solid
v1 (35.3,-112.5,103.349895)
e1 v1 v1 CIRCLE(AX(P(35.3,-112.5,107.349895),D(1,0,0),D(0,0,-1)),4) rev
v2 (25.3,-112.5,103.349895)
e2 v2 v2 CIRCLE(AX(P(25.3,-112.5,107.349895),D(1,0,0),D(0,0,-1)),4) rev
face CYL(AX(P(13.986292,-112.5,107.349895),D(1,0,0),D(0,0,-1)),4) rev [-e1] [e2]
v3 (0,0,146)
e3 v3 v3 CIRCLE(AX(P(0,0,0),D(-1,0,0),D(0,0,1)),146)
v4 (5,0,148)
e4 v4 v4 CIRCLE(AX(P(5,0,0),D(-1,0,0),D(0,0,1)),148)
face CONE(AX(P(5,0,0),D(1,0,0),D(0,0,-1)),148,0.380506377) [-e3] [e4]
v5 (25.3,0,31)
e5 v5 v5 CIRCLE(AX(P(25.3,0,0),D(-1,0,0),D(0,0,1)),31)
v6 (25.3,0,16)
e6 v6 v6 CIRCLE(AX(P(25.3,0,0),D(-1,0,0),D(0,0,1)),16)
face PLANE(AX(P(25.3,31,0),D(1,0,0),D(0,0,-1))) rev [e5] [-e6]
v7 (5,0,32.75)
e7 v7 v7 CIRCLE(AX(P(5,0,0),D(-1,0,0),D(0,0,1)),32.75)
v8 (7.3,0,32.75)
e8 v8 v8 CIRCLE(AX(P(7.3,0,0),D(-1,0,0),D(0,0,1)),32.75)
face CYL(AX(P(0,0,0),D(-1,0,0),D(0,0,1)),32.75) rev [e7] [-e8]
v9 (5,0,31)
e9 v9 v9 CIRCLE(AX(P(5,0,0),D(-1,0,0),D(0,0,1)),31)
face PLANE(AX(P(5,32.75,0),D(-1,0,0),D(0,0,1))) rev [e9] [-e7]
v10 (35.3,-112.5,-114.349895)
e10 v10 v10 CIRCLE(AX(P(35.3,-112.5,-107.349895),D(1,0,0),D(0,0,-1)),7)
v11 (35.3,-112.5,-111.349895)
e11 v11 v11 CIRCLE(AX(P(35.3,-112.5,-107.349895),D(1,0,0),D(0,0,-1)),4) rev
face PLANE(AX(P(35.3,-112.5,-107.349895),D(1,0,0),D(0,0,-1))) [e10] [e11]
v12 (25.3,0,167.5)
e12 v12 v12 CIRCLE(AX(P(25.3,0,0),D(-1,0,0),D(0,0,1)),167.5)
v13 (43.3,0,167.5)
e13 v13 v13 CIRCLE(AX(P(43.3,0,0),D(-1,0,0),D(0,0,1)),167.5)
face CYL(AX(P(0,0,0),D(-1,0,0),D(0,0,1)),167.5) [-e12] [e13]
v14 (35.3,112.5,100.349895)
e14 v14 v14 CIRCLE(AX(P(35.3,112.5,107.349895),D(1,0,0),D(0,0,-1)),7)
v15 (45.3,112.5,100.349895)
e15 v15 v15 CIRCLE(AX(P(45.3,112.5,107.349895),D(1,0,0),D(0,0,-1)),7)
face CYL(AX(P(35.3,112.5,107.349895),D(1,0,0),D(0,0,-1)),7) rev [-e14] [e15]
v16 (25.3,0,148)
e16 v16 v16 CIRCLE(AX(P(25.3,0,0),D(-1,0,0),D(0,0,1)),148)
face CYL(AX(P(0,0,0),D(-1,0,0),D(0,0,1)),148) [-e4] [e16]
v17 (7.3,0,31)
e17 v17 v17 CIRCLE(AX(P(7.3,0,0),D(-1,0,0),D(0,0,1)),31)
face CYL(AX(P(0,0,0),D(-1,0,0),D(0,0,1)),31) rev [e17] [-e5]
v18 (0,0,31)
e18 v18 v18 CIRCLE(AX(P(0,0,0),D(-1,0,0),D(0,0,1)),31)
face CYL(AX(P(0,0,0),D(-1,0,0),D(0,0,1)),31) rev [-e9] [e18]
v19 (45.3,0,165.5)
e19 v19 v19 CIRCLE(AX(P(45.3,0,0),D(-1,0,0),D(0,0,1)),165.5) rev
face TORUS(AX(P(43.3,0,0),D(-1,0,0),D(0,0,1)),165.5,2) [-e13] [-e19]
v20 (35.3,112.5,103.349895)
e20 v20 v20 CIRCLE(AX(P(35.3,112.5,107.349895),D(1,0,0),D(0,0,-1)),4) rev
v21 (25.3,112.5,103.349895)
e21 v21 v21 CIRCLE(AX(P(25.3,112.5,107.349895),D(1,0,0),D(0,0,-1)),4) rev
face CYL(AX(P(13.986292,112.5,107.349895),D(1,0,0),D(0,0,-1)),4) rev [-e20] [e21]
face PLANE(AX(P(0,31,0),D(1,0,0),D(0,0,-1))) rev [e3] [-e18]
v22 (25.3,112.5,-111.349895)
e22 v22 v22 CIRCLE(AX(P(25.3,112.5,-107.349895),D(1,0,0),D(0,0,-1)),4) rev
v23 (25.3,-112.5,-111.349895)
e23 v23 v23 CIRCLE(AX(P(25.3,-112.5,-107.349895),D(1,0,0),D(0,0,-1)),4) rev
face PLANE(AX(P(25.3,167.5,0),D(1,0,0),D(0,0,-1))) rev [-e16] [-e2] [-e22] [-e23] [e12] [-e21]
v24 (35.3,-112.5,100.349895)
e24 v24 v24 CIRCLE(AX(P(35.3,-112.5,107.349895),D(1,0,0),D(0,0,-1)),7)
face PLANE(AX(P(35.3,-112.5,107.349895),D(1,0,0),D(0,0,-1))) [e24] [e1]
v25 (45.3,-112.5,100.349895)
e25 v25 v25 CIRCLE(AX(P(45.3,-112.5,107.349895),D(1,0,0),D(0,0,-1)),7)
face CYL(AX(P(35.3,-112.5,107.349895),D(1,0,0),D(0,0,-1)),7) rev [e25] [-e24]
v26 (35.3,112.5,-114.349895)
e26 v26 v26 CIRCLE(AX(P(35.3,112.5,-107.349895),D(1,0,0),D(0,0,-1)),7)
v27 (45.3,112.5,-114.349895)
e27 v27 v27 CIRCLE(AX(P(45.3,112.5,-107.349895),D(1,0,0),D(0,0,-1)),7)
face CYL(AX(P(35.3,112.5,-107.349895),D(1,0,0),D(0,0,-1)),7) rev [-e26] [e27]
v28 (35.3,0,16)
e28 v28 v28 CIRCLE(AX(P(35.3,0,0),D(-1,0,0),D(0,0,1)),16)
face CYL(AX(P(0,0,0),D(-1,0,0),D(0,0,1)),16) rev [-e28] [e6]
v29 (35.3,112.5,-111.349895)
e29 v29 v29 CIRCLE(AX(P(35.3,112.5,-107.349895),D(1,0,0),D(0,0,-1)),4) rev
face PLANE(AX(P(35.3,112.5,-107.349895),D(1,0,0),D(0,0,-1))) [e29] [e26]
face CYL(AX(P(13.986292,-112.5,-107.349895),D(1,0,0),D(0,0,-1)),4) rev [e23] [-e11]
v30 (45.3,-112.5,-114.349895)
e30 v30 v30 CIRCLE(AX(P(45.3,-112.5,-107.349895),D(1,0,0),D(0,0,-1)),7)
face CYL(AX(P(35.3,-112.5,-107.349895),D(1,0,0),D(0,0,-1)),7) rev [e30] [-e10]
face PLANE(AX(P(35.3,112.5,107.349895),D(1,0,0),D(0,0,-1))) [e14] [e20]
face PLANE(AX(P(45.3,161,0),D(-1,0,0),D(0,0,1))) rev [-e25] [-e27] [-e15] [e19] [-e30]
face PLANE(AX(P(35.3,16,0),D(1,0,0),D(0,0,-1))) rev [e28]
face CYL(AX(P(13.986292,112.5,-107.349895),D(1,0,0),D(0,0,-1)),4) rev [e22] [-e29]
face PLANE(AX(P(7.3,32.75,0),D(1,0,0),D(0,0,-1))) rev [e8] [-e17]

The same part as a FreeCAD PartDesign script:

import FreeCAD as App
import Part
import Sketcher
Q = App.Units.Quantity


def edges_at(feature, points):
    """Names of the edges that pass closest to the given points."""
    edges = feature.Shape.Edges
    near = lambda p: min(range(len(edges)), key=lambda i: edges[i].distToShape(Part.Vertex(*p))[0])
    return sorted({f"Edge{near(p) + 1}" for p in points})


def add_polygon(sketch, points):
    """Adds a closed chain of lines whose ends are joined by coincident constraints."""
    first, n = sketch.GeometryCount, len(points)
    for a, b in zip(points, points[1:] + points[:1]):
        sketch.addGeometry(Part.LineSegment(App.Vector(*a, 0), App.Vector(*b, 0)), False)
    for i in range(n):
        sketch.addConstraint(Sketcher.Constraint("Coincident", first + i, 2, first + (i + 1) % n, 1))

doc = App.newDocument("Part")
body = doc.addObject("PartDesign::Body", "Body")

sketch1 = body.newObject("Sketcher::SketchObject", "Sketch")
sketch1.AttachmentSupport = (doc.getObject("XY_Plane"), [""])
sketch1.MapMode = "FlatFace"
add_polygon(sketch1, [(0, 31), (5, 31), (5, 32.8), (7.3, 32.8), (7.3, 31), (25.3, 31), (25.3, 16), (35.3, 16), (35.3, 0), (45.3, 0), (45.3, 167.5), (25.3, 167.5), (25.3, 148), (5, 148), (0, 146)])
sketch1.addConstraint(Sketcher.Constraint("Horizontal", 0))
sketch1.addConstraint(Sketcher.Constraint("Vertical", 1))
sketch1.addConstraint(Sketcher.Constraint("Horizontal", 2))
sketch1.addConstraint(Sketcher.Constraint("Vertical", 3))
sketch1.addConstraint(Sketcher.Constraint("Horizontal", 4))
sketch1.addConstraint(Sketcher.Constraint("Vertical", 5))
sketch1.addConstraint(Sketcher.Constraint("Horizontal", 6))
sketch1.addConstraint(Sketcher.Constraint("Vertical", 7))
sketch1.addConstraint(Sketcher.Constraint("Horizontal", 8))
sketch1.addConstraint(Sketcher.Constraint("Vertical", 9))
sketch1.addConstraint(Sketcher.Constraint("Horizontal", 10))
sketch1.addConstraint(Sketcher.Constraint("Vertical", 11))
sketch1.addConstraint(Sketcher.Constraint("Horizontal", 12))
sketch1.addConstraint(Sketcher.Constraint("Vertical", 14))
sketch1.addConstraint(Sketcher.Constraint("PointOnObject", 7, 2, -1))
sketch1.addConstraint(Sketcher.Constraint("PointOnObject", 13, 2, -2))
sketch1.addConstraint(Sketcher.Constraint("Horizontal", 0, 2, 3, 2))
sketch1.addConstraint(Sketcher.Constraint("Vertical", 5, 2, 10, 2))
sketch1.addConstraint(Sketcher.Constraint("Vertical", 1, 2, 12, 2))
sketch1.addConstraint(Sketcher.Constraint("Equal", 6, 8))
sketch1.addConstraint(Sketcher.Constraint("DistanceX", 0, 1, 0, 2, Q("5 mm")))
sketch1.addConstraint(Sketcher.Constraint("DistanceX", 4, 1, 4, 2, Q("18 mm")))
sketch1.addConstraint(Sketcher.Constraint("DistanceX", 6, 1, 6, 2, Q("10 mm")))
sketch1.addConstraint(Sketcher.Constraint("DistanceY", 5, 2, 5, 1, Q("15 mm")))
sketch1.addConstraint(Sketcher.Constraint("DistanceY", 7, 2, 7, 1, Q("16 mm")))
sketch1.addConstraint(Sketcher.Constraint("DistanceY", 14, 2, 14, 1, Q("115 mm")))
sketch1.addConstraint(Sketcher.Constraint("DistanceX", 2, 1, 2, 2, Q("2.3 mm")))
sketch1.addConstraint(Sketcher.Constraint("DistanceY", 9, 1, 9, 2, Q("167.5 mm")))
sketch1.addConstraint(Sketcher.Constraint("DistanceY", 11, 2, 11, 1, Q("19.5 mm")))
sketch1.addConstraint(Sketcher.Constraint("DistanceY", 1, 1, 1, 2, Q("1.75 mm")))
revolution = body.newObject("PartDesign::Revolution", "Revolution")
revolution.Profile = sketch1
revolution.ReferenceAxis = (sketch1, ["H_Axis"])
revolution.Angle = 360

sketch2 = body.newObject("Sketcher::SketchObject", "Sketch001")
sketch2.AttachmentSupport = (doc.getObject("YZ_Plane"), [""])
sketch2.MapMode = "FlatFace"
sketch2.AttachmentOffset = App.Placement(App.Vector(0, 0, 45.3), App.Rotation())
sketch2.addGeometry(Part.Circle(App.Vector(112.5, 107.3, 0), App.Vector(0, 0, 1), 4), False)
sketch2.addGeometry(Part.Circle(App.Vector(112.5, -107.3, 0), App.Vector(0, 0, 1), 4), False)
sketch2.addGeometry(Part.Circle(App.Vector(-112.5, -107.3, 0), App.Vector(0, 0, 1), 4), False)
sketch2.addGeometry(Part.Circle(App.Vector(-112.5, 107.3, 0), App.Vector(0, 0, 1), 4), False)
sketch2.addConstraint(Sketcher.Constraint("Equal", 0, 1))
sketch2.addConstraint(Sketcher.Constraint("Equal", 1, 2))
sketch2.addConstraint(Sketcher.Constraint("Equal", 2, 3))
sketch2.addConstraint(Sketcher.Constraint("Symmetric", 0, 3, 2, 3, -1, 1))
sketch2.addConstraint(Sketcher.Constraint("Symmetric", 1, 3, 3, 3, -1, 1))
sketch2.addConstraint(Sketcher.Constraint("Symmetric", 1, 3, 2, 3, -2))
sketch2.addConstraint(Sketcher.Constraint("Diameter", 0, Q("8 mm")))
sketch2.addConstraint(Sketcher.Constraint("DistanceX", 2, 3, 1, 3, Q("225 mm")))
sketch2.addConstraint(Sketcher.Constraint("DistanceY", 1, 3, 0, 3, Q("214.69979 mm")))
pocket1 = body.newObject("PartDesign::Pocket", "Pocket")
pocket1.Profile = sketch2
pocket1.Length = 20

sketch3 = body.newObject("Sketcher::SketchObject", "Sketch002")
sketch3.AttachmentSupport = (doc.getObject("YZ_Plane"), [""])
sketch3.MapMode = "FlatFace"
sketch3.AttachmentOffset = App.Placement(App.Vector(0, 0, 45.3), App.Rotation())
sketch3.addGeometry(Part.Circle(App.Vector(112, 107, 0), App.Vector(0, 0, 1), 7), False)
sketch3.addGeometry(Part.Circle(App.Vector(112, -107, 0), App.Vector(0, 0, 1), 7), False)
sketch3.addGeometry(Part.Circle(App.Vector(-112, -107, 0), App.Vector(0, 0, 1), 7), False)
sketch3.addGeometry(Part.Circle(App.Vector(-112, 107, 0), App.Vector(0, 0, 1), 7), False)
sketch3.addConstraint(Sketcher.Constraint("Equal", 0, 1))
sketch3.addConstraint(Sketcher.Constraint("Equal", 1, 2))
sketch3.addConstraint(Sketcher.Constraint("Equal", 2, 3))
sketch3.addConstraint(Sketcher.Constraint("Symmetric", 0, 3, 2, 3, -1, 1))
sketch3.addConstraint(Sketcher.Constraint("Symmetric", 1, 3, 3, 3, -1, 1))
sketch3.addConstraint(Sketcher.Constraint("Symmetric", 1, 3, 2, 3, -2))
sketch3.addConstraint(Sketcher.Constraint("Diameter", 0, Q("14 mm")))
sketch3.addConstraint(Sketcher.Constraint("DistanceX", 2, 3, 1, 3, Q("225 mm")))
sketch3.addConstraint(Sketcher.Constraint("DistanceY", 1, 3, 0, 3, Q("214.69979 mm")))
pocket2 = body.newObject("PartDesign::Pocket", "Pocket001")
pocket2.Profile = sketch3
pocket2.Length = 10
doc.recompute()

fillet = body.newObject("PartDesign::Fillet", "Fillet")
fillet.Base = (pocket2, edges_at(pocket2, [(45.3, 0, -167.5)]))
fillet.Radius = 2

doc.recompute()
